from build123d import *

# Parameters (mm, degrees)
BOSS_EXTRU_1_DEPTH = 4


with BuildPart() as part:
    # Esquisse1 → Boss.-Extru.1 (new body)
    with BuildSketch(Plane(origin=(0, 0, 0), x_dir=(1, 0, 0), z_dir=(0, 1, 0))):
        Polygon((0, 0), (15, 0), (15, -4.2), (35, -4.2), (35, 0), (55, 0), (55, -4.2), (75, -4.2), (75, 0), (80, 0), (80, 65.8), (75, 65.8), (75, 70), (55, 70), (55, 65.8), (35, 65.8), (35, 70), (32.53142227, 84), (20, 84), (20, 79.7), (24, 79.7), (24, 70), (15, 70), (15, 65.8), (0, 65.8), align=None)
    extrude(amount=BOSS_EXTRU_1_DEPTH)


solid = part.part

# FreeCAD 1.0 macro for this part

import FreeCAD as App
import Part
import Sketcher
from FreeCAD import Vector
Q = App.Units.Quantity


def add_polygon(sketch, points):
    """Adds a closed chain of lines whose ends are joined by coincident constraints."""
    first, n = sketch.GeometryCount, len(points)
    for a, b in zip(points, points[1:] + points[:1]):
        sketch.addGeometry(Part.LineSegment(App.Vector(*a, 0), App.Vector(*b, 0)), False)
    for i in range(n):
        sketch.addConstraint(Sketcher.Constraint("Coincident", first + i, 2, first + (i + 1) % n, 1))

doc = App.newDocument("Part")
body = doc.addObject("PartDesign::Body", "Body")

sketch1 = body.newObject("Sketcher::SketchObject", "Sketch")
sketch1.AttachmentSupport = (doc.getObject("XZ_Plane"), [""])
sketch1.MapMode = "FlatFace"
add_polygon(sketch1, [(0, 0), (15, 0), (15, 4.2), (35, 4.2), (35, 0), (55, 0), (55, 4.2), (75, 4.2), (75, 0), (80, 0), (80, -65.8), (75, -65.8), (75, -70), (55, -70), (55, -65.8), (35, -65.8), (35, -70), (32.5, -84), (20, -84), (20, -79.7), (24, -79.7), (24, -70), (15, -70), (15, -65.8), (0, -65.8)])
sketch1.addConstraint([
    Sketcher.Constraint("Horizontal", 0),
    Sketcher.Constraint("Vertical", 1),
    Sketcher.Constraint("Horizontal", 2),
    Sketcher.Constraint("Vertical", 3),
    Sketcher.Constraint("Horizontal", 4),
    Sketcher.Constraint("Vertical", 5),
    Sketcher.Constraint("Horizontal", 6),
    Sketcher.Constraint("Vertical", 7),
    Sketcher.Constraint("Horizontal", 8),
    Sketcher.Constraint("Vertical", 9),
    Sketcher.Constraint("Horizontal", 10),
    Sketcher.Constraint("Vertical", 11),
    Sketcher.Constraint("Horizontal", 12),
    Sketcher.Constraint("Vertical", 13),
    Sketcher.Constraint("Horizontal", 14),
    Sketcher.Constraint("Vertical", 15),
    Sketcher.Constraint("Horizontal", 17),
    Sketcher.Constraint("Vertical", 18),
    Sketcher.Constraint("Horizontal", 19),
    Sketcher.Constraint("Vertical", 20),
    Sketcher.Constraint("Horizontal", 21),
    Sketcher.Constraint("Vertical", 22),
    Sketcher.Constraint("Horizontal", 23),
    Sketcher.Constraint("Vertical", 24),
    Sketcher.Constraint("Coincident", 24, 2, -1, 1),
    Sketcher.Constraint("PointOnObject", 3, 2, -1),
    Sketcher.Constraint("PointOnObject", 7, 2, -1),
    Sketcher.Constraint("Horizontal", 2, 2, 5, 2),
    Sketcher.Constraint("Horizontal", 10, 2, 13, 2),
    Sketcher.Constraint("Horizontal", 12, 2, 15, 2),
    Sketcher.Constraint("Horizontal", 15, 2, 20, 2),
    Sketcher.Constraint("Horizontal", 14, 2, 22, 2),
    Sketcher.Constraint("Vertical", 7, 2, 10, 2),
    Sketcher.Constraint("Vertical", 5, 2, 12, 2),
    Sketcher.Constraint("Vertical", 3, 2, 14, 2),
    Sketcher.Constraint("Vertical", 1, 2, 21, 2),
    Sketcher.Constraint("Equal", 2, 4),
    Sketcher.Constraint("Equal", 4, 6),
    Sketcher.Constraint("Equal", 7, 11),
    Sketcher.Constraint("DistanceX", 0, 1, 0, 2, Q("15 mm")),
    Sketcher.Constraint("DistanceX", 2, 1, 2, 2, Q("20 mm")),
    Sketcher.Constraint("DistanceX", 8, 1, 8, 2, Q("5 mm")),
    Sketcher.Constraint("DistanceX", 19, 1, 19, 2, Q("4 mm")),
    Sketcher.Constraint("DistanceX", 21, 2, 21, 1, Q("9 mm")),
    Sketcher.Constraint("Angle", 16, Q("-100 deg")),
    Sketcher.Constraint("DistanceY", 1, 1, 1, 2, Q("4.2 mm")),
    Sketcher.Constraint("DistanceY", 9, 2, 9, 1, Q("65.8 mm")),
    Sketcher.Constraint("DistanceY", 18, 1, 18, 2, Q("4.3 mm")),
    Sketcher.Constraint("DistanceY", 20, 1, 20, 2, Q("9.7 mm")),
])
pad1 = body.newObject("PartDesign::Pad", "Pad")
pad1.Profile = sketch1
pad1.Length = 4
pad1.Reversed = True

doc.recompute()
